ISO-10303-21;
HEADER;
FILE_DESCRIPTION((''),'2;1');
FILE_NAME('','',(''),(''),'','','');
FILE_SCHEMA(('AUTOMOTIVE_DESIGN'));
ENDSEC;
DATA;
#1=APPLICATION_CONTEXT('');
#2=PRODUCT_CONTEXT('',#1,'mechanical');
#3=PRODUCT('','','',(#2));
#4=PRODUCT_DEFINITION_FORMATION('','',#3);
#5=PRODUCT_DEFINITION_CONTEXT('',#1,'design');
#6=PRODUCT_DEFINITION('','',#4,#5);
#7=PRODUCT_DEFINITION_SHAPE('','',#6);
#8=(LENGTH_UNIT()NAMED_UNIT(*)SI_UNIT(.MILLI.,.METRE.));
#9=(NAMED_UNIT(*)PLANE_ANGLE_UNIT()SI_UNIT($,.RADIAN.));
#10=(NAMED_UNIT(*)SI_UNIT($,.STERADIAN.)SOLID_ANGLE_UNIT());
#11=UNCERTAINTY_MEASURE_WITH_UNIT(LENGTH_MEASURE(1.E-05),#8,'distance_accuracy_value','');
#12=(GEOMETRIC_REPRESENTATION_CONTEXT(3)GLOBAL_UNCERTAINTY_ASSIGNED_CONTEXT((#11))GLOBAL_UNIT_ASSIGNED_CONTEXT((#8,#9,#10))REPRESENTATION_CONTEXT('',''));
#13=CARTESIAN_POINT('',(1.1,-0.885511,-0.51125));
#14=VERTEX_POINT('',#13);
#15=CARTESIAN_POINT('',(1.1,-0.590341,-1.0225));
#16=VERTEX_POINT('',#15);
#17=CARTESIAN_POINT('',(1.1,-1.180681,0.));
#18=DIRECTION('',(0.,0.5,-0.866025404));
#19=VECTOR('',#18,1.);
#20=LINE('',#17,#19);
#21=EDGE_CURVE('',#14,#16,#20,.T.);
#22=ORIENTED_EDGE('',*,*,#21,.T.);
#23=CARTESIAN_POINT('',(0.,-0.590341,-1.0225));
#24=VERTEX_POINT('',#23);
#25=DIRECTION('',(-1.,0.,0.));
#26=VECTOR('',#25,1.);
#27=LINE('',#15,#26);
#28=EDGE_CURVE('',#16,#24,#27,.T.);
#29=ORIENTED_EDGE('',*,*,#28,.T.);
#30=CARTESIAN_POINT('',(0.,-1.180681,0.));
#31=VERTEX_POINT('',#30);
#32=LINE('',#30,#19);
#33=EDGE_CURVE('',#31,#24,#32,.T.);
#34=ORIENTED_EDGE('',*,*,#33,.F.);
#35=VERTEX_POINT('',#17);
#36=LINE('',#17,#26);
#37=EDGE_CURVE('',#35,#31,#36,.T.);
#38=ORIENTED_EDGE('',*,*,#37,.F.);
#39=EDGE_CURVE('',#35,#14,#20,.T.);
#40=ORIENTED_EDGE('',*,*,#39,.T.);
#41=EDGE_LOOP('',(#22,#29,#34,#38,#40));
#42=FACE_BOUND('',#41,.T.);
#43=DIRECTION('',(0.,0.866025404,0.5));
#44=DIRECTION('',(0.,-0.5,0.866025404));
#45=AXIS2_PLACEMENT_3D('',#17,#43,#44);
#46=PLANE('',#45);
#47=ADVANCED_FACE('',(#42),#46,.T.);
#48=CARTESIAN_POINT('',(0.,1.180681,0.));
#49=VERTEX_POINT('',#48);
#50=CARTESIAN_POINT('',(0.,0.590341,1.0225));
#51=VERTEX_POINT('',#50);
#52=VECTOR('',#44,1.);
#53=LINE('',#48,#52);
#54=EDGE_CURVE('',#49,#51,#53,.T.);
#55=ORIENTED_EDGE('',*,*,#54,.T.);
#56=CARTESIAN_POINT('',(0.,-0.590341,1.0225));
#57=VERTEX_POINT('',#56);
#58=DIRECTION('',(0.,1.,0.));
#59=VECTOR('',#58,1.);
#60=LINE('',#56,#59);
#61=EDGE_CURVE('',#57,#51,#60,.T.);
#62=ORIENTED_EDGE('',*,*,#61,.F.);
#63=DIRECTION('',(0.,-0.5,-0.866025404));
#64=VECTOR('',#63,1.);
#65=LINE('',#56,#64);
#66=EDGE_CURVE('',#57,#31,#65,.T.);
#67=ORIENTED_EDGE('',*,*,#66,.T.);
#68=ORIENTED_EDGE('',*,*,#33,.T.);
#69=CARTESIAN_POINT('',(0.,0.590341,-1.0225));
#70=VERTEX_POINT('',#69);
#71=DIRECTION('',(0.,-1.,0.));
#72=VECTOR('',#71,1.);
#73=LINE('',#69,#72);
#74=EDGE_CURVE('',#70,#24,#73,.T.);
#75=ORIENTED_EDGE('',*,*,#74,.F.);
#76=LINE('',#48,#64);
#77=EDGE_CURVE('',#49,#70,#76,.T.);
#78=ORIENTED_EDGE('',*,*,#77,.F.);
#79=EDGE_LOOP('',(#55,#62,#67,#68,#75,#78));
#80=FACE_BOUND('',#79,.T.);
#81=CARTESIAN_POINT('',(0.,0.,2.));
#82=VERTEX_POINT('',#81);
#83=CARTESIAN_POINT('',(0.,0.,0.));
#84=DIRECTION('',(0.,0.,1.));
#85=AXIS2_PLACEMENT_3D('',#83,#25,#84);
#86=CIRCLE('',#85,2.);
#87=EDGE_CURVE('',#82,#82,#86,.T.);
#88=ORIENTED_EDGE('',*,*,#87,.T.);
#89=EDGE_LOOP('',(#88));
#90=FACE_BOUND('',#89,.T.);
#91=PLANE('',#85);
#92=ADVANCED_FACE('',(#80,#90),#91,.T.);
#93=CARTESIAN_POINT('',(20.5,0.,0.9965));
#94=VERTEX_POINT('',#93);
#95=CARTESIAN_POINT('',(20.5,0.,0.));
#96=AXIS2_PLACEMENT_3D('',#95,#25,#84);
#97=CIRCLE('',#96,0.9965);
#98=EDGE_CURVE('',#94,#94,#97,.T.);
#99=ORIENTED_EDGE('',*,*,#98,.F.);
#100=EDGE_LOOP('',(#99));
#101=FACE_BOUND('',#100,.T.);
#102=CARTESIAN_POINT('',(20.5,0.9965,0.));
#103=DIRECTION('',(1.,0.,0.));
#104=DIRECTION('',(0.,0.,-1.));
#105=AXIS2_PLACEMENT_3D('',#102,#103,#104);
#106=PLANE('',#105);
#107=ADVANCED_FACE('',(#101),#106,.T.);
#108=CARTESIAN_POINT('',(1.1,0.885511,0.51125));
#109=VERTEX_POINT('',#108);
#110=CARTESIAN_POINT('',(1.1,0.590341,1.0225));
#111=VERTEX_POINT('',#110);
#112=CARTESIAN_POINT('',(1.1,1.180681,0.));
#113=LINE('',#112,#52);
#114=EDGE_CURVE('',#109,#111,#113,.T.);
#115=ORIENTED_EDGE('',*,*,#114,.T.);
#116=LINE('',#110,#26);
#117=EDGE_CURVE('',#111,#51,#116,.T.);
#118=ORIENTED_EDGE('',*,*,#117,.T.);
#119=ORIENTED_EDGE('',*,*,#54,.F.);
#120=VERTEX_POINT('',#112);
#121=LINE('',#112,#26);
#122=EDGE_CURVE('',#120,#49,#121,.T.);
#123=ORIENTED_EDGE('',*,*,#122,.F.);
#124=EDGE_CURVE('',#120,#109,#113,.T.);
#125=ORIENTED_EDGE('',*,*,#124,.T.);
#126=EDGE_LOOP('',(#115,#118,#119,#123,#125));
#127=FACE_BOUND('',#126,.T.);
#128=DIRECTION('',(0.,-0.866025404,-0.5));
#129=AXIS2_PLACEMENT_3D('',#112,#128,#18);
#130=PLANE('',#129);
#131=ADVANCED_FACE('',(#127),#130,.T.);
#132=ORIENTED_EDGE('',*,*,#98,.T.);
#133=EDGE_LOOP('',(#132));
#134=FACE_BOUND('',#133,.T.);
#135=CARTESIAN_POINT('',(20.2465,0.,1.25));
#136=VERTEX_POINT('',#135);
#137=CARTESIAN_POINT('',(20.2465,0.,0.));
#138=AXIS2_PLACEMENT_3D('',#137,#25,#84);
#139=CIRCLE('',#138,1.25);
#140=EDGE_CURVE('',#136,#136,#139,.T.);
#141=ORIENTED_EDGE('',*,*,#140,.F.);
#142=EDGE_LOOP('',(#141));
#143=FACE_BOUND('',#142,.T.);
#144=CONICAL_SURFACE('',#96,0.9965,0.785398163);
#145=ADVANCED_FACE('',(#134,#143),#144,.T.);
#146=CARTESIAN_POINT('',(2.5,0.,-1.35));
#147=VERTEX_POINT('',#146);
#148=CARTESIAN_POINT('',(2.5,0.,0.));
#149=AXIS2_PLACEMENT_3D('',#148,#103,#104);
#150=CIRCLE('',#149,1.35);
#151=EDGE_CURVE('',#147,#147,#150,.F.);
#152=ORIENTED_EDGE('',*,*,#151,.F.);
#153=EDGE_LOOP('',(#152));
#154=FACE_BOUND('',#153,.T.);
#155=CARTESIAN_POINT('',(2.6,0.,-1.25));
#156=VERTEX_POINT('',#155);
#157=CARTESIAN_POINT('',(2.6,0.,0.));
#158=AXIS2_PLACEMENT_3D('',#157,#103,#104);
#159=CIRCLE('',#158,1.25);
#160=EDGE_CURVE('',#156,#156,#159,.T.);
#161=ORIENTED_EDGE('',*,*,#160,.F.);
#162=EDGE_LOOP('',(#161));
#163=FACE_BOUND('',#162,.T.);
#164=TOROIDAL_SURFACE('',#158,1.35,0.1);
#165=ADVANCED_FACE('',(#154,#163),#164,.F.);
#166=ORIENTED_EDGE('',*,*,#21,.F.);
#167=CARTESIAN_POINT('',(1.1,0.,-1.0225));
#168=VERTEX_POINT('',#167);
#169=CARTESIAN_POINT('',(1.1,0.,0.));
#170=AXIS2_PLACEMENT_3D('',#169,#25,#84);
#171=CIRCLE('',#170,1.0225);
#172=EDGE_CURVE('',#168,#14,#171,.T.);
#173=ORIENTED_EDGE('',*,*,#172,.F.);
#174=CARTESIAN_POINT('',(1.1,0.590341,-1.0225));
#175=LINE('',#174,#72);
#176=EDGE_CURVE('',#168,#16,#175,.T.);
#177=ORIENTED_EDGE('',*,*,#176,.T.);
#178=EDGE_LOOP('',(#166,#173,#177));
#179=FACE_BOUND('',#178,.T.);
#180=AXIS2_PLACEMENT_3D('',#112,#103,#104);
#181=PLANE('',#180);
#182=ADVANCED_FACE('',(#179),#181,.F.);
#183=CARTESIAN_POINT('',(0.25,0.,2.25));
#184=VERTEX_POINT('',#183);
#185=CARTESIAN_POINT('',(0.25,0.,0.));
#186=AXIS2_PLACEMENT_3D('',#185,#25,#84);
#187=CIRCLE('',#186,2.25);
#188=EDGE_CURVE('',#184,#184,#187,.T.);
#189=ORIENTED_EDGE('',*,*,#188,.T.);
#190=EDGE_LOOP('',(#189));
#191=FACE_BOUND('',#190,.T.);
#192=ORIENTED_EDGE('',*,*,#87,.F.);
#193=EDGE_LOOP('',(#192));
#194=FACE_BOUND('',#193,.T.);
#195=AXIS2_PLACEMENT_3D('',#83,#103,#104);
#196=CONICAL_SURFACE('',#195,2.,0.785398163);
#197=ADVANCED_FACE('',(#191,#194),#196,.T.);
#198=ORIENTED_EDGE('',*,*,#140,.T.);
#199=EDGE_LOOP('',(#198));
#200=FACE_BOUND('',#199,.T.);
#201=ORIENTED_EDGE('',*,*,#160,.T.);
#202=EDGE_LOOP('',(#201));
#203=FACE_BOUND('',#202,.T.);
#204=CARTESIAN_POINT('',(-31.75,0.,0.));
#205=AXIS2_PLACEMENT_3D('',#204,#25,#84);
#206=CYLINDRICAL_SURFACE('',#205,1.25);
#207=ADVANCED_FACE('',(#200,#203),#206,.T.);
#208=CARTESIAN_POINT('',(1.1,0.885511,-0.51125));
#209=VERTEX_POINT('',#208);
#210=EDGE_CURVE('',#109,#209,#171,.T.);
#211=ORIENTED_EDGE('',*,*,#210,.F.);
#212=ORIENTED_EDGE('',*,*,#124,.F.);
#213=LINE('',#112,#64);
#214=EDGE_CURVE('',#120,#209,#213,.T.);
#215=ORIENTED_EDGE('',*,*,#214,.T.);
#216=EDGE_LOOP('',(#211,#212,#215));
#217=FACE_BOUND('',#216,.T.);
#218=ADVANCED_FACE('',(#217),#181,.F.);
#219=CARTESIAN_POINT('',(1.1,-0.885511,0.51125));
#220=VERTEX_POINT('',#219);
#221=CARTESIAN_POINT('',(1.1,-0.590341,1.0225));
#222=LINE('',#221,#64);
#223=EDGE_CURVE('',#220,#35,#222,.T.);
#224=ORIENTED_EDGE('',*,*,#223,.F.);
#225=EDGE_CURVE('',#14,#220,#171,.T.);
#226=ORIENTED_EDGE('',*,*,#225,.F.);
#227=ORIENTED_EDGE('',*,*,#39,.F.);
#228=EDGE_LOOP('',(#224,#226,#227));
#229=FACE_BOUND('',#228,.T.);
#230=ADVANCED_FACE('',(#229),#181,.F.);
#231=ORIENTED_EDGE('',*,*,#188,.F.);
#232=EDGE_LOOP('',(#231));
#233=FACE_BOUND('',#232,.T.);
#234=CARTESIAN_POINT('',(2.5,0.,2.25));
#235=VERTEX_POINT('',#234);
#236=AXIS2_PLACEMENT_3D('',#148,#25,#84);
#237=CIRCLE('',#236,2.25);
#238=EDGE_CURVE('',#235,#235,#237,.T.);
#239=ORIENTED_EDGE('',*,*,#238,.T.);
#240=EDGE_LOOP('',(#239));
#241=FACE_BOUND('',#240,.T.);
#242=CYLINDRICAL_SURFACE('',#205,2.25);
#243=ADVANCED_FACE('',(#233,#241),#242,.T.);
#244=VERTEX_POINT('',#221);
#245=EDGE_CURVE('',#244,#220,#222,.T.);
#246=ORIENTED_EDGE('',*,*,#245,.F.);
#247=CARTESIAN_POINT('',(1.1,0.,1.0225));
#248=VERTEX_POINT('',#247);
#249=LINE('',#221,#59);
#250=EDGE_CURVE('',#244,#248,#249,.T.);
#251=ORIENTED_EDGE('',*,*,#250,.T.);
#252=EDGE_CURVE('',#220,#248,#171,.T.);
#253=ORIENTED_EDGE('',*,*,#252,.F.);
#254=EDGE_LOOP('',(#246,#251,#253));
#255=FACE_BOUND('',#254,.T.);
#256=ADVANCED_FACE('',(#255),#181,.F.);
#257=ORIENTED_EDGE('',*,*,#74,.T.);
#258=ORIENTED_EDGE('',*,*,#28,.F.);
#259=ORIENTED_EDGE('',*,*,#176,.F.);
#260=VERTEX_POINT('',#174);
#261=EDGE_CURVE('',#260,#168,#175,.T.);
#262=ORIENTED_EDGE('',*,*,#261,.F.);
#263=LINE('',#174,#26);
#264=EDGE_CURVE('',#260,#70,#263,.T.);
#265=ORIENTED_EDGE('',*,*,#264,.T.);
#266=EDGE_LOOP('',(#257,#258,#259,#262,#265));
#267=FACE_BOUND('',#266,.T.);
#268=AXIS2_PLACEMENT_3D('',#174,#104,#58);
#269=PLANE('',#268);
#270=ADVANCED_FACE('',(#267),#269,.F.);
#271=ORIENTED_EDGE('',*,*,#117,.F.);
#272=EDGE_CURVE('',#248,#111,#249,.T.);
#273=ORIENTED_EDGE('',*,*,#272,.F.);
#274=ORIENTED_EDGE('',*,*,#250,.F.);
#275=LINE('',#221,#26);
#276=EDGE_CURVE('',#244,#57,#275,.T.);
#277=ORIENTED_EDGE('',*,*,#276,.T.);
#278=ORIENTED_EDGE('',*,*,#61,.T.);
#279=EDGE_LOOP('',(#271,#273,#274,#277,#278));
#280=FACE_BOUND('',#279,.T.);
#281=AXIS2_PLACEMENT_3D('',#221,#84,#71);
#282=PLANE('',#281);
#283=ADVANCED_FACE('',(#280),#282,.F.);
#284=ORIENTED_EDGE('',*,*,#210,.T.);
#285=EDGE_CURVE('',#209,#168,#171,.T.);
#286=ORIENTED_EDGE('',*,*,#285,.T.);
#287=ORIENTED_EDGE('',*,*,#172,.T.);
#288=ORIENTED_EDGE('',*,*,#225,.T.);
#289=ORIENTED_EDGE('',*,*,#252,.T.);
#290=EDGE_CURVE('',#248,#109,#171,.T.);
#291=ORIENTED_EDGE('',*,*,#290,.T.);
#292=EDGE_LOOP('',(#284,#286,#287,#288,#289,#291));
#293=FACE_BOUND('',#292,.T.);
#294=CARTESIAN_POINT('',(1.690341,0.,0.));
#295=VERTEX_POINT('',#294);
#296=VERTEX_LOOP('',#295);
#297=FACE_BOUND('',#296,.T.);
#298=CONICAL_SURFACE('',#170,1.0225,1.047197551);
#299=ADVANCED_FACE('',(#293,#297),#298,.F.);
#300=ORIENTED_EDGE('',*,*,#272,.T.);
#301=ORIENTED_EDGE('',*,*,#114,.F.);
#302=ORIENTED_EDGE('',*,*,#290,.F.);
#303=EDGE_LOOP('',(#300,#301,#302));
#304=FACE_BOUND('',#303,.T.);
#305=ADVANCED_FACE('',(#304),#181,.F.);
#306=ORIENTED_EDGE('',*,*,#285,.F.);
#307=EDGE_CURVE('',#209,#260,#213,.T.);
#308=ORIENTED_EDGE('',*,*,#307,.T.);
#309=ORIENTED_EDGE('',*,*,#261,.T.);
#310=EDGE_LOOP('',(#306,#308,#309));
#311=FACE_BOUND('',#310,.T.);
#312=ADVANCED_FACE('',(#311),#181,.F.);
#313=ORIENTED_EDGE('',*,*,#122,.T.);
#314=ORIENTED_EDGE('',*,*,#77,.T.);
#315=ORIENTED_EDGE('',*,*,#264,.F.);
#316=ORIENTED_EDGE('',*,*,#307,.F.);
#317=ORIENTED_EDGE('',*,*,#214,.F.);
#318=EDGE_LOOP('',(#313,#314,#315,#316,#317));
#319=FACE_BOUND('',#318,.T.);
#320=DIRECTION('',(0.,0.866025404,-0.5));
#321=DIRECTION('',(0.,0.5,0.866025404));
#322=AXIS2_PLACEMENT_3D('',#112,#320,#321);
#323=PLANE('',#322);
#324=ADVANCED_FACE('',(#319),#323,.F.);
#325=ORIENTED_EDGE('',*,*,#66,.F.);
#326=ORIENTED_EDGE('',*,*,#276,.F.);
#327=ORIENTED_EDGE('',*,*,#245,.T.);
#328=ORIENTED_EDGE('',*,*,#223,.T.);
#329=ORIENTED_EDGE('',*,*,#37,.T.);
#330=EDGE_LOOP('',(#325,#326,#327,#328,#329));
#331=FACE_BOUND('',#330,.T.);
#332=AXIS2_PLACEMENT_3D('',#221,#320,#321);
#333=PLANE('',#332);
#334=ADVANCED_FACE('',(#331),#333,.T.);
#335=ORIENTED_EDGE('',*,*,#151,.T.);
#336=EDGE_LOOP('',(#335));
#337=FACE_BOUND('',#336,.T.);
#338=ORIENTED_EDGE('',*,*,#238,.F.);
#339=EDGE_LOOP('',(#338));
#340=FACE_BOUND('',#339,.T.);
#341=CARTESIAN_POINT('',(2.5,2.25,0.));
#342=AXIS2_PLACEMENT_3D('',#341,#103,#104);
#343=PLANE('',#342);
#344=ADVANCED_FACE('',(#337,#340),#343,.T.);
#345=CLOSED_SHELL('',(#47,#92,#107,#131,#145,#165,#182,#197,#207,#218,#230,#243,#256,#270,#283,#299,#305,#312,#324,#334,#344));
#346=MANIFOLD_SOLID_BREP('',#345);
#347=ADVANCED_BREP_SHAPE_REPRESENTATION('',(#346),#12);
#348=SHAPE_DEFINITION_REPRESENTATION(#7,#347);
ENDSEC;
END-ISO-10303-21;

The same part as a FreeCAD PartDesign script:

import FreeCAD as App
import Part
import Sketcher

V = App.Vector
Q = App.Units.Quantity


def edges_at(feature, points):
    """Names of the edges that pass closest to the given points."""
    edges = feature.Shape.Edges
    near = lambda p: min(range(len(edges)), key=lambda i: edges[i].distToShape(Part.Vertex(*p))[0])
    return sorted({f"Edge{near(p) + 1}" for p in points})


def add_polygon(sketch, points):
    """Adds a closed chain of lines whose ends are joined by coincident constraints."""
    first, n = sketch.GeometryCount, len(points)
    for a, b in zip(points, points[1:] + points[:1]):
        sketch.addGeometry(Part.LineSegment(App.Vector(*a, 0), App.Vector(*b, 0)), False)
    for i in range(n):
        sketch.addConstraint(Sketcher.Constraint("Coincident", first + i, 2, first + (i + 1) % n, 1))

doc = App.newDocument("Part")
params = doc.addObject("Spreadsheet::Sheet", "Params")
for row, (alias, value) in enumerate([
    ("sketch1_height", "2 mm"),
    ("sketch1_height2", "1 mm"),
    ("sketch1_width", "20.5 mm"),
    ("sketch1_width2", "2.25 mm"),
    ("revolution_angle", "360 deg"),
    ("fillet_radius", "0.1 mm"),
    ("sketch2_width", "1.1 mm"),
    ("groove_angle", "360 deg"),
    ("pocket1_length", "1.1 mm"),
], start=1):
    params.set(f"A{row}", alias)
    params.set(f"B{row}", "=" + value)
    params.setAlias(f"B{row}", alias)

body = doc.addObject("PartDesign::Body", "Body")

# Sketch on XY plane
sketch1 = body.newObject("Sketcher::SketchObject", "Sketch")
sketch1.AttachmentSupport = (doc.getObject("XY_Plane"), [""])
sketch1.MapMode = "FlatFace"
add_polygon(sketch1, [(0, 2), (0, 0), (20.5, 0), (20.5, 1), (20.25, 1.25), (2.5, 1.25), (2.5, 2.25), (0.25, 2.25)])  # lines 0-7
sketch1.addConstraint([
    Sketcher.Constraint("Vertical", 0),
    Sketcher.Constraint("Horizontal", 1),
    Sketcher.Constraint("Vertical", 2),
    Sketcher.Constraint("Horizontal", 4),
    Sketcher.Constraint("Vertical", 5),
    Sketcher.Constraint("Horizontal", 6),
    Sketcher.Constraint("Coincident", 0, 2, -1, 1),
    Sketcher.Constraint("Perpendicular", 3, 7),
    Sketcher.Constraint("DistanceY", 0, 2, 0, 1, Q("2 mm")),
    Sketcher.Constraint("DistanceY", 5, 1, 5, 2, Q("1 mm")),
    Sketcher.Constraint("Angle", 3, Q("135 deg")),
    Sketcher.Constraint("DistanceX", 1, 1, 1, 2, Q("20.5 mm")),
    Sketcher.Constraint("DistanceX", 4, 2, 2, 2, Q("18 mm")),
    Sketcher.Constraint("DistanceX", 6, 2, 6, 1, Q("2.25 mm")),
    Sketcher.Constraint("DistanceX", 4, 2, 4, 1, Q("17.7465 mm")),
])
sketch1.setExpression("Constraints[16]", "Params.sketch1_height")
sketch1.setExpression("Constraints[17]", "Params.sketch1_height2")
sketch1.setExpression("Constraints[19]", "Params.sketch1_width")
sketch1.setExpression("Constraints[21]", "Params.sketch1_width2")
revolution = body.newObject("PartDesign::Revolution", "Revolution")
revolution.Profile = sketch1
revolution.ReferenceAxis = (sketch1, ["H_Axis"])
revolution.setExpression("Angle", "Params.revolution_angle")
doc.recompute()

fillet = body.newObject("PartDesign::Fillet", "Fillet")
fillet.Base = (revolution, edges_at(revolution, [(2.5, 0, -1.25)]))
fillet.setExpression("Radius", "Params.fillet_radius")

# Sketch on XY plane
sketch2 = body.newObject("Sketcher::SketchObject", "Sketch001")
sketch2.AttachmentSupport = (doc.getObject("XY_Plane"), [""])
sketch2.MapMode = "FlatFace"
add_polygon(sketch2, [(1.1, 1), (0, 1), (0, 0), (1.7, 0)])  # lines 0-3
sketch2.addConstraint([
    Sketcher.Constraint("Horizontal", 0),
    Sketcher.Constraint("Vertical", 1),
    Sketcher.Constraint("Horizontal", 2),
    Sketcher.Constraint("Coincident", 1, 2, -1, 1),
    Sketcher.Constraint("Angle", 3, Q("120 deg")),
    Sketcher.Constraint("DistanceX", 0, 2, 0, 1, Q("1.1 mm")),
    Sketcher.Constraint("DistanceY", 1, 2, 1, 1, Q("1.0225 mm")),
])
sketch2.setExpression("Constraints[9]", "Params.sketch2_width")
groove = body.newObject("PartDesign::Groove", "Groove")
groove.Profile = sketch2
groove.ReferenceAxis = (sketch2, ["H_Axis"])
groove.setExpression("Angle", "Params.groove_angle")

# Sketch on YZ plane
sketch3 = body.newObject("Sketcher::SketchObject", "Sketch002")
sketch3.AttachmentSupport = (doc.getObject("YZ_Plane"), [""])
sketch3.MapMode = "FlatFace"
add_polygon(sketch3, [(1.2, 0), (0.6, -1), (-0.6, -1), (-1.2, 0), (-0.6, 1), (0.6, 1)])  # lines 0-5
sketch3.addConstraint([
    Sketcher.Constraint("Horizontal", 1),
    Sketcher.Constraint("Horizontal", 4),
    Sketcher.Constraint("Symmetric", 0, 2, 3, 2, -1, 1),
    Sketcher.Constraint("Symmetric", 2, 2, 5, 2, -1, 1),
    Sketcher.Constraint("PointOnObject", 2, 2, -1),
    Sketcher.Constraint("Parallel", 2, 5),
    Sketcher.Constraint("Vertical", 1, 2, 3, 2),
    Sketcher.Constraint("Angle", 0, Q("-120 deg")),
    Sketcher.Constraint("DistanceY", 1, 2, 3, 2, Q("2.045 mm")),
    Sketcher.Constraint("DistanceX", 1, 2, 1, 1, Q("1.180681 mm")),
])
pocket1 = body.newObject("PartDesign::Pocket", "Pocket")
pocket1.Profile = sketch3
pocket1.setExpression("Length", "Params.pocket1_length")
pocket1.Reversed = True

doc.recompute()
